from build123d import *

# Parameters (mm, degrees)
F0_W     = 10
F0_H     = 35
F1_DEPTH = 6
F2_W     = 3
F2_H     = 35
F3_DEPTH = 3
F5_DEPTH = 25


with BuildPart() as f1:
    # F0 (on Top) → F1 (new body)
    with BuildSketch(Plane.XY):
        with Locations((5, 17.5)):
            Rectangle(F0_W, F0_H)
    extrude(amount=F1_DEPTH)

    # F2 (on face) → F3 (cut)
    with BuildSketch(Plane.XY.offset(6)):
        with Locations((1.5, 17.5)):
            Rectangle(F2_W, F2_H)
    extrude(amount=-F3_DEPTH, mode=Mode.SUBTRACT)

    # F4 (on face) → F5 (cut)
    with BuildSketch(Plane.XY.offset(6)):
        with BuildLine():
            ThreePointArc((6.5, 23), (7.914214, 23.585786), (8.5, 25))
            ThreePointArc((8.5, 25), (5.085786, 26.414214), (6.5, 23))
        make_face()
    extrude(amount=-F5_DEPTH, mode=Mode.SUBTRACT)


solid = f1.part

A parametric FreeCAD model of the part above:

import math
import FreeCAD as App
import Part
import Sketcher

doc = App.newDocument("Part")
body = doc.addObject("PartDesign::Body", "Body")

sketch1 = body.newObject("Sketcher::SketchObject", "Sketch")
sketch1.AttachmentSupport = (doc.getObject("XY_Plane"), [""])
sketch1.MapMode = "FlatFace"
sketch1.addGeometry(Part.LineSegment(App.Vector(0, 35, 0), App.Vector(0, 0, 0)), False)
sketch1.addGeometry(Part.LineSegment(App.Vector(0, 0, 0), App.Vector(10, 0, 0)), False)
sketch1.addGeometry(Part.LineSegment(App.Vector(10, 0, 0), App.Vector(10, 35, 0)), False)
sketch1.addGeometry(Part.LineSegment(App.Vector(10, 35, 0), App.Vector(0, 35, 0)), False)
sketch1.addConstraint(Sketcher.Constraint("Coincident", 0, 2, 1, 1))
sketch1.addConstraint(Sketcher.Constraint("Coincident", 1, 2, 2, 1))
sketch1.addConstraint(Sketcher.Constraint("Coincident", 2, 2, 3, 1))
sketch1.addConstraint(Sketcher.Constraint("Coincident", 3, 2, 0, 1))
sketch1.addConstraint(Sketcher.Constraint("Vertical", 0))
sketch1.addConstraint(Sketcher.Constraint("Horizontal", 1))
sketch1.addConstraint(Sketcher.Constraint("Vertical", 2))
sketch1.addConstraint(Sketcher.Constraint("Horizontal", 3))
sketch1.addConstraint(Sketcher.Constraint("Coincident", 0, 2, -1, 1))
sketch1.addConstraint(Sketcher.Constraint("DistanceX", 1, 1, 1, 2, 10.0))
sketch1.addConstraint(Sketcher.Constraint("DistanceY", 0, 2, 0, 1, 35.0))
pad1 = body.newObject("PartDesign::Pad", "Pad")
pad1.Profile = sketch1
pad1.Length = 6

sketch2 = body.newObject("Sketcher::SketchObject", "Sketch001")
sketch2.AttachmentSupport = (doc.getObject("XY_Plane"), [""])
sketch2.MapMode = "FlatFace"
sketch2.AttachmentOffset = App.Placement(App.Vector(0, 0, 6), App.Rotation())
sketch2.addGeometry(Part.LineSegment(App.Vector(0, 35, 0), App.Vector(0, 0, 0)), False)
sketch2.addGeometry(Part.LineSegment(App.Vector(0, 0, 0), App.Vector(3, 0, 0)), False)
sketch2.addGeometry(Part.LineSegment(App.Vector(3, 0, 0), App.Vector(3, 35, 0)), False)
sketch2.addGeometry(Part.LineSegment(App.Vector(3, 35, 0), App.Vector(0, 35, 0)), False)
sketch2.addConstraint(Sketcher.Constraint("Coincident", 0, 2, 1, 1))
sketch2.addConstraint(Sketcher.Constraint("Coincident", 1, 2, 2, 1))
sketch2.addConstraint(Sketcher.Constraint("Coincident", 2, 2, 3, 1))
sketch2.addConstraint(Sketcher.Constraint("Coincident", 3, 2, 0, 1))
sketch2.addConstraint(Sketcher.Constraint("Vertical", 0))
sketch2.addConstraint(Sketcher.Constraint("Horizontal", 1))
sketch2.addConstraint(Sketcher.Constraint("Vertical", 2))
sketch2.addConstraint(Sketcher.Constraint("Horizontal", 3))
sketch2.addConstraint(Sketcher.Constraint("Coincident", 0, 2, -1, 1))
sketch2.addConstraint(Sketcher.Constraint("DistanceX", 1, 1, 1, 2, 3.0))
sketch2.addConstraint(Sketcher.Constraint("DistanceY", 0, 2, 0, 1, 35.0))
pocket1 = body.newObject("PartDesign::Pocket", "Pocket")
pocket1.Profile = sketch2
pocket1.Length = 3

sketch3 = body.newObject("Sketcher::SketchObject", "Sketch002")
sketch3.AttachmentSupport = (doc.getObject("XY_Plane"), [""])
sketch3.MapMode = "FlatFace"
sketch3.AttachmentOffset = App.Placement(App.Vector(0, 0, 6), App.Rotation())
sketch3.addGeometry(Part.ArcOfCircle(Part.Circle(App.Vector(6.500001, 24.999999, 0), App.Vector(0, 0, 1), 1.999999), math.radians(-90.000043), math.radians(0.000043)), False)
sketch3.addGeometry(Part.ArcOfCircle(Part.Circle(App.Vector(6.5, 25, 0), App.Vector(0, 0, 1), 2), math.radians(-0.000007), math.radians(270.000007)), False)
sketch3.addConstraint(Sketcher.Constraint("Tangent", 0, 1, 1, 2))
sketch3.addConstraint(Sketcher.Constraint("Coincident", 1, 1, 0, 2))
sketch3.addConstraint(Sketcher.Constraint("Horizontal", 0, 3, 1, 1))
sketch3.addConstraint(Sketcher.Constraint("Vertical", 1, 3, 0, 1))
sketch3.addConstraint(Sketcher.Constraint("Radius", 0, 1.999999))
sketch3.addConstraint(Sketcher.Constraint("DistanceY", -1, 1, 0, 3, 24.999999))
sketch3.addConstraint(Sketcher.Constraint("DistanceX", -1, 1, 0, 3, 6.500001))
pocket2 = body.newObject("PartDesign::Pocket", "Pocket001")
pocket2.Profile = sketch3
pocket2.Length = 25

doc.recompute()
